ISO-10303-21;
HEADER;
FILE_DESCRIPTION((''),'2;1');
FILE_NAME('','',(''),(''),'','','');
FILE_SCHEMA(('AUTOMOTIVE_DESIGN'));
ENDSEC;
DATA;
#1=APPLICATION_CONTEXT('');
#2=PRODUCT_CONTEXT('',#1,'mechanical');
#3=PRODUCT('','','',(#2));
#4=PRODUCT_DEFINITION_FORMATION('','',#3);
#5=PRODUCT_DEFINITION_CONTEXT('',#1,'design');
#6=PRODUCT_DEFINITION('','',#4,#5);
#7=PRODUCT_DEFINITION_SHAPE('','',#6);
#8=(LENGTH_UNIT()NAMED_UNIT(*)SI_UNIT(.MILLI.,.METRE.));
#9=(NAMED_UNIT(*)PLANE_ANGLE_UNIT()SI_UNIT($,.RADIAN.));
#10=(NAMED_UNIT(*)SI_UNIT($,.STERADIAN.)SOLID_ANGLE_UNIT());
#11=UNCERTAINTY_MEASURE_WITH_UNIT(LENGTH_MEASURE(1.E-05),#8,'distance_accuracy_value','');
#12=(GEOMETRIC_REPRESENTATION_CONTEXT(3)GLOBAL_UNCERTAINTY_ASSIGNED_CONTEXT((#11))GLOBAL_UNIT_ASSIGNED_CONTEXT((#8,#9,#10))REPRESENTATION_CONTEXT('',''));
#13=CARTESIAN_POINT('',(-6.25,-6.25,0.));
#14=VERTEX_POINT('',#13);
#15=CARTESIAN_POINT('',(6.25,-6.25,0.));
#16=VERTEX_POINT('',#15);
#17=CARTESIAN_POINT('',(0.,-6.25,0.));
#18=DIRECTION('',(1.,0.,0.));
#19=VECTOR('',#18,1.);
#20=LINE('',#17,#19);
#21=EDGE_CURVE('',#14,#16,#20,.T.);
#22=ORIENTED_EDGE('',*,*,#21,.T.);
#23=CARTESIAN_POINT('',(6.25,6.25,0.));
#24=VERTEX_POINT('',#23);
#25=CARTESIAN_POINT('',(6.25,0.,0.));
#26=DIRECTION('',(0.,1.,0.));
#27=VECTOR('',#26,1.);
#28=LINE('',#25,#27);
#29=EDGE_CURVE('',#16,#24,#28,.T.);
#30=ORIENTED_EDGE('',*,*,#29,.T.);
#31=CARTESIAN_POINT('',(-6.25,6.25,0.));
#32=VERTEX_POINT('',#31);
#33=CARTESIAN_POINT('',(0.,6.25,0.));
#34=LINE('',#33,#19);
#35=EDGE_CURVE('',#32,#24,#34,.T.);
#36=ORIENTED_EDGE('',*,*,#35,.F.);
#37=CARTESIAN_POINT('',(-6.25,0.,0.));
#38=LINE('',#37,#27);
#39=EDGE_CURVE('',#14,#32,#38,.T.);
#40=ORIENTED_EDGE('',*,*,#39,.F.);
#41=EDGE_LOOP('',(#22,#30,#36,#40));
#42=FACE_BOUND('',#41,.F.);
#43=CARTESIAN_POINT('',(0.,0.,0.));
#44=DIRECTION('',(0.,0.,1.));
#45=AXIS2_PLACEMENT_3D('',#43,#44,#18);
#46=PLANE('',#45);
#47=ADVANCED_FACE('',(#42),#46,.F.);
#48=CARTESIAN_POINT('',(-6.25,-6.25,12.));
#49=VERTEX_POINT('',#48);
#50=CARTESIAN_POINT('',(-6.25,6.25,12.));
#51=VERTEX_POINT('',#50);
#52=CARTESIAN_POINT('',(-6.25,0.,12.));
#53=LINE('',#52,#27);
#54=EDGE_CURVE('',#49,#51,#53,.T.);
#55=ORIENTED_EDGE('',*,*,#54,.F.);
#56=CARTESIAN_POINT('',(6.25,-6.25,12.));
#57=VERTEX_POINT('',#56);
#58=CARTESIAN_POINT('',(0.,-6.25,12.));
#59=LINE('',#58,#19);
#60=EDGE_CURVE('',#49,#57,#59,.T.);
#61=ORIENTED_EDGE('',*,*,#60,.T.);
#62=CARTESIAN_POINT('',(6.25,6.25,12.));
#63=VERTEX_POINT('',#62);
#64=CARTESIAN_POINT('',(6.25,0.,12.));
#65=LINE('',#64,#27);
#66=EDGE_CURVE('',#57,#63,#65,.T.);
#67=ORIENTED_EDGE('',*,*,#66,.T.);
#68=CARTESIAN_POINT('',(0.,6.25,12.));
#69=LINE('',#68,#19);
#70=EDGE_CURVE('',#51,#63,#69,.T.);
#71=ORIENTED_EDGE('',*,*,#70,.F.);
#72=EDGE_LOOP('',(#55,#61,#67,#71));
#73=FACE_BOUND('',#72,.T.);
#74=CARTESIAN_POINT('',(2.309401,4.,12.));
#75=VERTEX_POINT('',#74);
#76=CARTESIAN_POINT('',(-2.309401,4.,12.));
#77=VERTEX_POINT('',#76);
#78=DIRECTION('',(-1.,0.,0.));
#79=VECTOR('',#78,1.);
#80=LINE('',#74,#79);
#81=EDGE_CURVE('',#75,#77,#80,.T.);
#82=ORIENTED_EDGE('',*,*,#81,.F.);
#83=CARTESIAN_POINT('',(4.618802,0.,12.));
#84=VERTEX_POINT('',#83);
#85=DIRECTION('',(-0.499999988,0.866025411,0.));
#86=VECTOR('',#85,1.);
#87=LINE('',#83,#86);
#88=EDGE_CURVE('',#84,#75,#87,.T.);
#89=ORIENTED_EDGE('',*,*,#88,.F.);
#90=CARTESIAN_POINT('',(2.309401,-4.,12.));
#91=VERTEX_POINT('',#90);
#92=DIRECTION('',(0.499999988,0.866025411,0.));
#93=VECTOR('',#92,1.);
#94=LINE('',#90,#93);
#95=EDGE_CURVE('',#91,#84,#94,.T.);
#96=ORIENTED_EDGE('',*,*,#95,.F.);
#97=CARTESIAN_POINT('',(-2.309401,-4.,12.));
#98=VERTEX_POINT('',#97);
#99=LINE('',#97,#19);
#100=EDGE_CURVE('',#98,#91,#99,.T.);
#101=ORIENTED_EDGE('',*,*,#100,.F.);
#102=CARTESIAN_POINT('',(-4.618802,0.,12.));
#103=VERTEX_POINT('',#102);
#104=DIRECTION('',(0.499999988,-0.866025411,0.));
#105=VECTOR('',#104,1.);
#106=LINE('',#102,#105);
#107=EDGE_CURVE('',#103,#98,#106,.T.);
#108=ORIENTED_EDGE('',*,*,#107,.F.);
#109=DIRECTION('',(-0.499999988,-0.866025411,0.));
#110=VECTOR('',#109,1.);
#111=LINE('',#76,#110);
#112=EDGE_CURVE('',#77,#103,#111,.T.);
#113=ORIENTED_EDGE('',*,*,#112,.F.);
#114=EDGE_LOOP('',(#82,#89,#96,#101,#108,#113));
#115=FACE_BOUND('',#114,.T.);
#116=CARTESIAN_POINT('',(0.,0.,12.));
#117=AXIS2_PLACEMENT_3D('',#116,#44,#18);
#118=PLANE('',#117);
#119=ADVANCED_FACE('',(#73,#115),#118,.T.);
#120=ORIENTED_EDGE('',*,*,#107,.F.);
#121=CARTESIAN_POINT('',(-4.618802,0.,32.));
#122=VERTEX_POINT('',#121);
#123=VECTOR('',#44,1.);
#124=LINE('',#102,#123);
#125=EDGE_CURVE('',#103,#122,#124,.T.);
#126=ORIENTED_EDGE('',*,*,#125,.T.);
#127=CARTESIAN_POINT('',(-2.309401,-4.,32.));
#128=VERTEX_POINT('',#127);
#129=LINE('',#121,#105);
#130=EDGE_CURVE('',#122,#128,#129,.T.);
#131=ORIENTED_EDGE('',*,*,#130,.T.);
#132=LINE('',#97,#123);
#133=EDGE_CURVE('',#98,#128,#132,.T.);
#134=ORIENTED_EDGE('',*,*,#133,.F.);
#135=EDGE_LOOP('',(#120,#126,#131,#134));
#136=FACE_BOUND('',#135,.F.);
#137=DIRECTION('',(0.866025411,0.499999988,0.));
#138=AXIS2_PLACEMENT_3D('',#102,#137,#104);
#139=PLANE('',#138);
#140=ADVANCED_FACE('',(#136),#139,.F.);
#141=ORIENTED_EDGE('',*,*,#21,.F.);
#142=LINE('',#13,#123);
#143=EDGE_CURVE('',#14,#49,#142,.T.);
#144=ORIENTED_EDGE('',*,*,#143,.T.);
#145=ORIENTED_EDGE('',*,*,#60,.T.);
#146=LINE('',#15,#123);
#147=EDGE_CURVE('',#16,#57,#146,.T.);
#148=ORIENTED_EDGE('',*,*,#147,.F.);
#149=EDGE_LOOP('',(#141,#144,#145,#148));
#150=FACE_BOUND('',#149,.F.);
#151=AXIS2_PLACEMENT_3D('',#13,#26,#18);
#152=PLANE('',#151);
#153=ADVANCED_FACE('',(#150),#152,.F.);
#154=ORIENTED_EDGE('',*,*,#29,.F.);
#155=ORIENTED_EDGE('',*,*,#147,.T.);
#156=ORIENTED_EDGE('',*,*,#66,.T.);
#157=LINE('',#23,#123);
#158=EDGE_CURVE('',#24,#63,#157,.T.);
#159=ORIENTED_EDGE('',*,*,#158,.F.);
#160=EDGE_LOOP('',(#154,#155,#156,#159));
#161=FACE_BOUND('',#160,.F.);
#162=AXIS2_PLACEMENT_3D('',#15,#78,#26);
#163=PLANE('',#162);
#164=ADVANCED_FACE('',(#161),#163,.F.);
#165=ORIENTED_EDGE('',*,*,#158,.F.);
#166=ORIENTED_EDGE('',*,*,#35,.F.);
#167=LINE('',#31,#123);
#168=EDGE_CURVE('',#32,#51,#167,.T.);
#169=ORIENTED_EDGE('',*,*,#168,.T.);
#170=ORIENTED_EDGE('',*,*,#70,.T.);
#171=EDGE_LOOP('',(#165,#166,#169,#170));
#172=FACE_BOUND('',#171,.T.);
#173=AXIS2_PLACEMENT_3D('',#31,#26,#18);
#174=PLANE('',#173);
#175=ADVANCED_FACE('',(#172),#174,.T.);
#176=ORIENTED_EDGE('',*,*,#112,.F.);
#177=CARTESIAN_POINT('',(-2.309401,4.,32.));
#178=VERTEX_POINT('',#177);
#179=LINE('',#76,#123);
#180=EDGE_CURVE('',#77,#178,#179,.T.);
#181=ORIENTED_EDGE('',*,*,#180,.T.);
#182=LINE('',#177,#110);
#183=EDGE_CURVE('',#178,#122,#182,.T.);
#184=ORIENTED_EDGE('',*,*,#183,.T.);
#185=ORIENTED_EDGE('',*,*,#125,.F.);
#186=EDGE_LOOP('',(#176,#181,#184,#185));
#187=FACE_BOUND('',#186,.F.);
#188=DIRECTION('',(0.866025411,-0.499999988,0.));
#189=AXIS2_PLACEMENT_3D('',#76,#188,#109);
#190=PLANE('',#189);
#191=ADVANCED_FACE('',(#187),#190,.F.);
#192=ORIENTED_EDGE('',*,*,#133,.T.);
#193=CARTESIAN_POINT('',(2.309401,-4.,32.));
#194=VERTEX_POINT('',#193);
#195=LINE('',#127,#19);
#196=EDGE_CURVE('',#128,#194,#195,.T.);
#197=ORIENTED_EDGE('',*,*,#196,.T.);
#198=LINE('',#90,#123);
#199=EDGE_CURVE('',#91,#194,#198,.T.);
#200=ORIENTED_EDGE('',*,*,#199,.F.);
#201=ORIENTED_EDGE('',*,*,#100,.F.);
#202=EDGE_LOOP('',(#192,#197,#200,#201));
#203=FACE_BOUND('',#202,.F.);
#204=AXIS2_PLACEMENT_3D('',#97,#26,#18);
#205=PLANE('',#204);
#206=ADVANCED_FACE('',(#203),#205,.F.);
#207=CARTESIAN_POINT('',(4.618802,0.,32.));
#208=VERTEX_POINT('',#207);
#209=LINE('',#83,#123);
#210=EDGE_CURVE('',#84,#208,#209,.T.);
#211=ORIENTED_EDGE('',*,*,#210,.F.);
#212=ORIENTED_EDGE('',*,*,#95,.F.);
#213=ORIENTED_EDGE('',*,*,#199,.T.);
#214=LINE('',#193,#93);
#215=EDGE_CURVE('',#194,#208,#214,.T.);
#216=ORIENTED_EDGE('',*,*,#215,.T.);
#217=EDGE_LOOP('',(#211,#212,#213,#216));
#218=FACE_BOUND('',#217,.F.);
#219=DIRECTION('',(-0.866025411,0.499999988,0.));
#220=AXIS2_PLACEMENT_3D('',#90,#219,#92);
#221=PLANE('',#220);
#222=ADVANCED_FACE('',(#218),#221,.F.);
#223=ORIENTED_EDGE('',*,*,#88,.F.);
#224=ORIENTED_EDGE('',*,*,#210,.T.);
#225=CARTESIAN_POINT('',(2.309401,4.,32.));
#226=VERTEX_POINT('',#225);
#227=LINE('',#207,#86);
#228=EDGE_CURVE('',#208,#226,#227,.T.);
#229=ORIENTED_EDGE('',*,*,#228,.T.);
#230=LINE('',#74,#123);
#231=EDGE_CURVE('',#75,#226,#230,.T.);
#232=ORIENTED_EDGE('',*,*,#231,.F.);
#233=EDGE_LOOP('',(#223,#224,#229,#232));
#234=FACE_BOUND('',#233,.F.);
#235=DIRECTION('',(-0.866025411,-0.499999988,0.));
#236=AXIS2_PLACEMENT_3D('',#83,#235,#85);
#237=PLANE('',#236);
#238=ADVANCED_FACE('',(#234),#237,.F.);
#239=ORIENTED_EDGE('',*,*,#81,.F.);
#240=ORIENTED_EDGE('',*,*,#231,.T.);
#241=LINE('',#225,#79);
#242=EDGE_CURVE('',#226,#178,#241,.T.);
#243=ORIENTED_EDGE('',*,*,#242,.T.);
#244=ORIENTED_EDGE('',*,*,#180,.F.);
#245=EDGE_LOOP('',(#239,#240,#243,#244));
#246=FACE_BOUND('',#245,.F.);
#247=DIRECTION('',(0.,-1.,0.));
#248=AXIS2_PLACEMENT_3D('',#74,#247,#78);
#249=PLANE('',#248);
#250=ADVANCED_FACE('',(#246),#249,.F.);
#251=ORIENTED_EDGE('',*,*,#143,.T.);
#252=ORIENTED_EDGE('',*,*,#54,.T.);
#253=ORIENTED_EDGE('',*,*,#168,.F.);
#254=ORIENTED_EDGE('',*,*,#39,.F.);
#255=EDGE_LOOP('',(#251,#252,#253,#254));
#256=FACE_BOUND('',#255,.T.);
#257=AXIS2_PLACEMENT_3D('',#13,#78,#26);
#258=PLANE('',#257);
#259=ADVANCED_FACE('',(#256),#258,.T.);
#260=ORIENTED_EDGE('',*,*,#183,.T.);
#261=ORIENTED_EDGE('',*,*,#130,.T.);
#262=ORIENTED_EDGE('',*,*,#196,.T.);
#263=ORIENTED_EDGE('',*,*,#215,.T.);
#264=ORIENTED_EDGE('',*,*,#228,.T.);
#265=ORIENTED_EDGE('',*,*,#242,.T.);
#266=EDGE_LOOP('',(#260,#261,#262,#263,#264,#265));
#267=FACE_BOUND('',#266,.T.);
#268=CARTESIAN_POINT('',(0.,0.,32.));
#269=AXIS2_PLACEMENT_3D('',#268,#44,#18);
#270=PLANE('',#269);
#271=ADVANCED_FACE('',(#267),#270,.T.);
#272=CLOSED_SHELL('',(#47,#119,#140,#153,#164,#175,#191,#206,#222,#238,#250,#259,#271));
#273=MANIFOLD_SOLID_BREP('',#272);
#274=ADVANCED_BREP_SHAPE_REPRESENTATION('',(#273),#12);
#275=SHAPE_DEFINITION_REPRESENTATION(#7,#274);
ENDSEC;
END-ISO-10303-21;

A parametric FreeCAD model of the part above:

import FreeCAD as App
import Part
import Sketcher

V = App.Vector
Q = App.Units.Quantity


def add_polygon(sketch, points):
    """Adds a closed chain of lines whose ends are joined by coincident constraints."""
    first, n = sketch.GeometryCount, len(points)
    for a, b in zip(points, points[1:] + points[:1]):
        sketch.addGeometry(Part.LineSegment(App.Vector(*a, 0), App.Vector(*b, 0)), False)
    for i in range(n):
        sketch.addConstraint(Sketcher.Constraint("Coincident", first + i, 2, first + (i + 1) % n, 1))

doc = App.newDocument("Part")
body = doc.addObject("PartDesign::Body", "Body")

# Sketch on XY plane
sketch1 = body.newObject("Sketcher::SketchObject", "Sketch")
sketch1.AttachmentSupport = (doc.getObject("XY_Plane"), [""])
sketch1.MapMode = "FlatFace"
add_polygon(sketch1, [(-6, 6), (-6, -6), (6, -6), (6, 6)])  # lines 0-3
sketch1.addConstraint([
    Sketcher.Constraint("Vertical", 0),
    Sketcher.Constraint("Horizontal", 1),
    Sketcher.Constraint("Vertical", 2),
    Sketcher.Constraint("Horizontal", 3),
    Sketcher.Constraint("Symmetric", 0, 2, 2, 2, -1, 1),
    Sketcher.Constraint("Equal", 3, 0),
    Sketcher.Constraint("DistanceX", 1, 1, 1, 2, Q("12.5 mm")),
])
pad1 = body.newObject("PartDesign::Pad", "Pad")
pad1.Profile = sketch1
pad1.Length = 12

# Sketch on XY plane
sketch2 = body.newObject("Sketcher::SketchObject", "Sketch001")
sketch2.AttachmentSupport = (doc.getObject("XY_Plane"), [""])
sketch2.MapMode = "FlatFace"
sketch2.AttachmentOffset = App.Placement(V(0, 0, 12), App.Rotation())
add_polygon(sketch2, [(-2.3, 4), (-4.6, 0), (-2.3, -4), (2.3, -4), (4.6, 0), (2.3, 4)])  # lines 0-5
sketch2.addConstraint([
    Sketcher.Constraint("Horizontal", 2),
    Sketcher.Constraint("Horizontal", 5),
    Sketcher.Constraint("Symmetric", 0, 2, 3, 2, -1, 1),
    Sketcher.Constraint("Symmetric", 1, 2, 4, 2, -1, 1),
    Sketcher.Constraint("PointOnObject", 0, 2, -1),
    Sketcher.Constraint("Parallel", 0, 3),
    Sketcher.Constraint("Vertical", 2, 2, 4, 2),
    Sketcher.Constraint("Angle", 0, Q("-119.999999 deg")),
    Sketcher.Constraint("DistanceY", 1, 2, -1, 1, Q("4 mm")),
    Sketcher.Constraint("DistanceX", 2, 1, 2, 2, Q("4.618802 mm")),
])
pad2 = body.newObject("PartDesign::Pad", "Pad001")
pad2.Profile = sketch2
pad2.Length = 20

doc.recompute()
